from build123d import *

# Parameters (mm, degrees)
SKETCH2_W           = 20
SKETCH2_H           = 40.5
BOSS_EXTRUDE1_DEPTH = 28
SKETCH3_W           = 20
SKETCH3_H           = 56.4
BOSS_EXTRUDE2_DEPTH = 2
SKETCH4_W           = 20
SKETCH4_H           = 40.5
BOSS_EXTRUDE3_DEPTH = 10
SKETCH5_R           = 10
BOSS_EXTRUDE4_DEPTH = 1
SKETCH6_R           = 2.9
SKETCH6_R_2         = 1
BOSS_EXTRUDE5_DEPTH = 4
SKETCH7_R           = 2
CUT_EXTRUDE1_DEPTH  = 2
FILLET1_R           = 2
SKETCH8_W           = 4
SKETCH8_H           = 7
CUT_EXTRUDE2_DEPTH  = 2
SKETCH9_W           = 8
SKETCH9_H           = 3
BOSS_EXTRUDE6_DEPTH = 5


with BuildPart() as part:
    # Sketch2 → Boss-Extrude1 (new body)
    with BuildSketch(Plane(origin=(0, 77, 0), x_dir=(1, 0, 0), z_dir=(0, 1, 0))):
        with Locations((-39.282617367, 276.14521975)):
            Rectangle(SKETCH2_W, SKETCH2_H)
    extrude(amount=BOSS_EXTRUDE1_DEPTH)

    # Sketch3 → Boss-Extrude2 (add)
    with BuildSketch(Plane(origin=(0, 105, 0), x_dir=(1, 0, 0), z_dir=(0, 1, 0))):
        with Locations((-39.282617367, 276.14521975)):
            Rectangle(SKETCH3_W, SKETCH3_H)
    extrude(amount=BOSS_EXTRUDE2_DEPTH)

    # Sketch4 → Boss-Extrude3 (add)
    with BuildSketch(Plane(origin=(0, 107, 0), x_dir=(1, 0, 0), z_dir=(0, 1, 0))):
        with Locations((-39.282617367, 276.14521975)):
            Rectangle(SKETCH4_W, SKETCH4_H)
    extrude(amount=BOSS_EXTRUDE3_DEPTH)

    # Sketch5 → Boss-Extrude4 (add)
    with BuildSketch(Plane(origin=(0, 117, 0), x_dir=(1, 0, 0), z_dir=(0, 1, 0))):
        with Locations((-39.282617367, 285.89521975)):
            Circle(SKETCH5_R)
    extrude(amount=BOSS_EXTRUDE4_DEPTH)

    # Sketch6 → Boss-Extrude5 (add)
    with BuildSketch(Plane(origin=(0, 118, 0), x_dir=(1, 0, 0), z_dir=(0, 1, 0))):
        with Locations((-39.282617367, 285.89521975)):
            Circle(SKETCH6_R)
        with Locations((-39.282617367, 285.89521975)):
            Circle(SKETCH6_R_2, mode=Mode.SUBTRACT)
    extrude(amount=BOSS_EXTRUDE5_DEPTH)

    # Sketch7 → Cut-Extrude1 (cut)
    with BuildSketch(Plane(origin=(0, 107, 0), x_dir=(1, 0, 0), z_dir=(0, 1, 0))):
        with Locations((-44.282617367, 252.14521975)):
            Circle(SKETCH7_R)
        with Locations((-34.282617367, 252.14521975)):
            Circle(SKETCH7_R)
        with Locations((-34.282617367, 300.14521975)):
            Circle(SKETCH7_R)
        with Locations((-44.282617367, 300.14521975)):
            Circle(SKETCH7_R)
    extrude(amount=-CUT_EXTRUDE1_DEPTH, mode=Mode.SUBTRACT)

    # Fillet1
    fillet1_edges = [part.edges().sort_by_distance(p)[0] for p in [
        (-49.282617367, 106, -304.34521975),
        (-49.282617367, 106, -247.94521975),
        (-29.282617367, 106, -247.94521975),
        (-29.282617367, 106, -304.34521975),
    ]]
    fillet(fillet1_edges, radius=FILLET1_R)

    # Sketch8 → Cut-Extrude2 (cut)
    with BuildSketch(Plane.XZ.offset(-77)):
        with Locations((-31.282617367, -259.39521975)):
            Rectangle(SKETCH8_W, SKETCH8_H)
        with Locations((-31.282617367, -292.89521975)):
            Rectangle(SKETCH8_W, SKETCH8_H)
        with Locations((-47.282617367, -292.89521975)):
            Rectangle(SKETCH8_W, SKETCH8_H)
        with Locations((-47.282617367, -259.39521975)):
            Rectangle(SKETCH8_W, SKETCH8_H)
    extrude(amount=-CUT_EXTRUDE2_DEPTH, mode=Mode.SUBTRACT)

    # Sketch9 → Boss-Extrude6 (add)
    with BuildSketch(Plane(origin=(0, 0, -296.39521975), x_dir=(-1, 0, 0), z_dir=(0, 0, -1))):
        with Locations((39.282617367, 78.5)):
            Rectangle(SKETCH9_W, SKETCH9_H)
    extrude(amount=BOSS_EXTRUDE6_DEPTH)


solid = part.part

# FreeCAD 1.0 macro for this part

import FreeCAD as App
import Part
import Sketcher


def edges_at(feature, points):
    """Names of the edges that pass closest to the given points."""
    edges = feature.Shape.Edges
    near = lambda p: min(range(len(edges)), key=lambda i: edges[i].distToShape(Part.Vertex(*p))[0])
    return sorted({f"Edge{near(p) + 1}" for p in points})


def add_polygon(sketch, points):
    """Adds a closed chain of lines whose ends are joined by coincident constraints."""
    first, n = sketch.GeometryCount, len(points)
    for a, b in zip(points, points[1:] + points[:1]):
        sketch.addGeometry(Part.LineSegment(App.Vector(*a, 0), App.Vector(*b, 0)), False)
    for i in range(n):
        sketch.addConstraint(Sketcher.Constraint("Coincident", first + i, 2, first + (i + 1) % n, 1))

doc = App.newDocument("Part")
body = doc.addObject("PartDesign::Body", "Body")

# Sketch on XZ plane
sketch1 = body.newObject("Sketcher::SketchObject", "Sketch")
sketch1.AttachmentSupport = (doc.getObject("XZ_Plane"), [""])
sketch1.MapMode = "FlatFace"
sketch1.AttachmentOffset = App.Placement(App.Vector(0, 0, -77), App.Rotation())
add_polygon(sketch1, [(-49, -296), (-49, -256), (-29, -256), (-29, -296)])  # lines 0-3
sketch1.addConstraint([
    Sketcher.Constraint("Vertical", 0),
    Sketcher.Constraint("Horizontal", 1),
    Sketcher.Constraint("Vertical", 2),
    Sketcher.Constraint("Horizontal", 3),
    Sketcher.Constraint("DistanceX", 1, 1, 1, 2, 20.0),
    Sketcher.Constraint("DistanceY", 0, 1, 0, 2, 40.5),
    Sketcher.Constraint("DistanceY", 0, 2, -1, 1, 255.89522),
    Sketcher.Constraint("DistanceX", 0, 2, -1, 1, 49.282617),
])
pad1 = body.newObject("PartDesign::Pad", "Pad")
pad1.Profile = sketch1
pad1.Length = 28
pad1.Reversed = True

# Sketch on XZ plane
sketch2 = body.newObject("Sketcher::SketchObject", "Sketch001")
sketch2.AttachmentSupport = (doc.getObject("XZ_Plane"), [""])
sketch2.MapMode = "FlatFace"
sketch2.AttachmentOffset = App.Placement(App.Vector(0, 0, -105), App.Rotation())
add_polygon(sketch2, [(-49, -304), (-49, -248), (-29, -248), (-29, -304)])  # lines 0-3
sketch2.addConstraint([
    Sketcher.Constraint("Vertical", 0),
    Sketcher.Constraint("Horizontal", 1),
    Sketcher.Constraint("Vertical", 2),
    Sketcher.Constraint("Horizontal", 3),
    Sketcher.Constraint("DistanceX", 1, 1, 1, 2, 20.0),
    Sketcher.Constraint("DistanceY", 0, 1, 0, 2, 56.4),
    Sketcher.Constraint("DistanceY", 0, 2, -1, 1, 247.94522),
    Sketcher.Constraint("DistanceX", 0, 2, -1, 1, 49.282617),
])
pad2 = body.newObject("PartDesign::Pad", "Pad001")
pad2.Profile = sketch2
pad2.Length = 2
pad2.Reversed = True

# Sketch on XZ plane
sketch3 = body.newObject("Sketcher::SketchObject", "Sketch002")
sketch3.AttachmentSupport = (doc.getObject("XZ_Plane"), [""])
sketch3.MapMode = "FlatFace"
sketch3.AttachmentOffset = App.Placement(App.Vector(0, 0, -107), App.Rotation())
add_polygon(sketch3, [(-49, -296), (-49, -256), (-29, -256), (-29, -296)])  # lines 0-3
sketch3.addConstraint([
    Sketcher.Constraint("Vertical", 0),
    Sketcher.Constraint("Horizontal", 1),
    Sketcher.Constraint("Vertical", 2),
    Sketcher.Constraint("Horizontal", 3),
    Sketcher.Constraint("DistanceX", 1, 1, 1, 2, 20.0),
    Sketcher.Constraint("DistanceY", 0, 1, 0, 2, 40.5),
    Sketcher.Constraint("DistanceY", 0, 2, -1, 1, 255.89522),
    Sketcher.Constraint("DistanceX", 0, 2, -1, 1, 49.282617),
])
pad3 = body.newObject("PartDesign::Pad", "Pad002")
pad3.Profile = sketch3
pad3.Length = 10
pad3.Reversed = True

# Sketch on XZ plane
sketch4 = body.newObject("Sketcher::SketchObject", "Sketch003")
sketch4.AttachmentSupport = (doc.getObject("XZ_Plane"), [""])
sketch4.MapMode = "FlatFace"
sketch4.AttachmentOffset = App.Placement(App.Vector(0, 0, -117), App.Rotation())
sketch4.addGeometry(Part.Circle(App.Vector(-39, -286, 0), App.Vector(0, 0, 1), 10), False)
sketch4.addConstraint([
    Sketcher.Constraint("Diameter", 0, 20.0),
    Sketcher.Constraint("DistanceY", 0, 3, -1, 1, 285.89522),
    Sketcher.Constraint("DistanceX", 0, 3, -1, 1, 39.282617),
])
pad4 = body.newObject("PartDesign::Pad", "Pad003")
pad4.Profile = sketch4
pad4.Length = 1
pad4.Reversed = True

# Sketch on XZ plane
sketch5 = body.newObject("Sketcher::SketchObject", "Sketch004")
sketch5.AttachmentSupport = (doc.getObject("XZ_Plane"), [""])
sketch5.MapMode = "FlatFace"
sketch5.AttachmentOffset = App.Placement(App.Vector(0, 0, -118), App.Rotation())
sketch5.addGeometry([
    Part.Circle(App.Vector(-39.3, -285.9, 0), App.Vector(0, 0, 1), 2.9),
    Part.Circle(App.Vector(-39.3, -285.9, 0), App.Vector(0, 0, 1), 1),
], False)
sketch5.addConstraint([
    Sketcher.Constraint("Coincident", 1, 3, 0, 3),
    Sketcher.Constraint("Diameter", 1, 2.0),
    Sketcher.Constraint("Diameter", 0, 5.8),
    Sketcher.Constraint("DistanceY", 0, 3, -1, 1, 285.89522),
    Sketcher.Constraint("DistanceX", 0, 3, -1, 1, 39.282617),
])
pad5 = body.newObject("PartDesign::Pad", "Pad004")
pad5.Profile = sketch5
pad5.Length = 4
pad5.Reversed = True

# Sketch on XZ plane
sketch6 = body.newObject("Sketcher::SketchObject", "Sketch005")
sketch6.AttachmentSupport = (doc.getObject("XZ_Plane"), [""])
sketch6.MapMode = "FlatFace"
sketch6.AttachmentOffset = App.Placement(App.Vector(0, 0, -107), App.Rotation())
sketch6.addGeometry([
    Part.Circle(App.Vector(-44.3, -252.1, 0), App.Vector(0, 0, 1), 2),
    Part.Circle(App.Vector(-34.3, -252.1, 0), App.Vector(0, 0, 1), 2),
    Part.Circle(App.Vector(-34.3, -300.1, 0), App.Vector(0, 0, 1), 2),
    Part.Circle(App.Vector(-44.3, -300.1, 0), App.Vector(0, 0, 1), 2),
], False)
sketch6.addConstraint([
    Sketcher.Constraint("Equal", 0, 1),
    Sketcher.Constraint("Equal", 1, 2),
    Sketcher.Constraint("Equal", 2, 3),
    Sketcher.Constraint("Horizontal", 0, 3, 1, 3),
    Sketcher.Constraint("Horizontal", 2, 3, 3, 3),
    Sketcher.Constraint("Vertical", 1, 3, 2, 3),
    Sketcher.Constraint("Vertical", 0, 3, 3, 3),
    Sketcher.Constraint("Diameter", 0, 4.0),
    Sketcher.Constraint("DistanceX", 0, 3, 1, 3, 10.0),
    Sketcher.Constraint("DistanceY", 2, 3, 1, 3, 48.0),
    Sketcher.Constraint("DistanceY", 0, 3, -1, 1, 252.14522),
    Sketcher.Constraint("DistanceX", 0, 3, -1, 1, 44.282617),
])
pocket1 = body.newObject("PartDesign::Pocket", "Pocket")
pocket1.Profile = sketch6
pocket1.Length = 2
pocket1.Reversed = True
doc.recompute()

fillet = body.newObject("PartDesign::Fillet", "Fillet")
fillet.Base = (pocket1, edges_at(pocket1, [
    (-49.283, 106, -304.345),
    (-49.283, 106, -247.945),
    (-29.283, 106, -247.945),
    (-29.283, 106, -304.345),
]))
fillet.Radius = 2

# Sketch on XZ plane
sketch7 = body.newObject("Sketcher::SketchObject", "Sketch006")
sketch7.AttachmentSupport = (doc.getObject("XZ_Plane"), [""])
sketch7.MapMode = "FlatFace"
sketch7.AttachmentOffset = App.Placement(App.Vector(0, 0, -77), App.Rotation())
add_polygon(sketch7, [(-33.3, -255.9), (-33.3, -262.9), (-29.3, -262.9), (-29.3, -255.9)])  # lines 0-3
add_polygon(sketch7, [(-33.3, -289.4), (-33.3, -296.4), (-29.3, -296.4), (-29.3, -289.4)])  # lines 4-7
add_polygon(sketch7, [(-49.3, -289.4), (-49.3, -296.4), (-45.3, -296.4), (-45.3, -289.4)])  # lines 8-11
add_polygon(sketch7, [(-49.3, -255.9), (-49.3, -262.9), (-45.3, -262.9), (-45.3, -255.9)])  # lines 12-15
sketch7.addConstraint([
    Sketcher.Constraint("Vertical", 0),
    Sketcher.Constraint("Horizontal", 1),
    Sketcher.Constraint("Vertical", 2),
    Sketcher.Constraint("Horizontal", 3),
    Sketcher.Constraint("Vertical", 4),
    Sketcher.Constraint("Horizontal", 5),
    Sketcher.Constraint("Vertical", 6),
    Sketcher.Constraint("Horizontal", 7),
    Sketcher.Constraint("Vertical", 8),
    Sketcher.Constraint("Horizontal", 9),
    Sketcher.Constraint("Vertical", 10),
    Sketcher.Constraint("Horizontal", 11),
    Sketcher.Constraint("Vertical", 12),
    Sketcher.Constraint("Horizontal", 13),
    Sketcher.Constraint("Vertical", 14),
    Sketcher.Constraint("Horizontal", 15),
    Sketcher.Constraint("Horizontal", 5, 2, 8, 2),
    Sketcher.Constraint("Horizontal", 7, 2, 10, 2),
    Sketcher.Constraint("Horizontal", 1, 2, 12, 2),
    Sketcher.Constraint("Horizontal", 3, 2, 14, 2),
    Sketcher.Constraint("Vertical", 3, 2, 4, 2),
    Sketcher.Constraint("Vertical", 2, 2, 5, 2),
    Sketcher.Constraint("Vertical", 11, 2, 12, 2),
    Sketcher.Constraint("Vertical", 10, 2, 13, 2),
    Sketcher.Constraint("Equal", 7, 9),
    Sketcher.Constraint("Equal", 2, 4),
    Sketcher.Constraint("DistanceX", 1, 1, 1, 2, 4.0),
    Sketcher.Constraint("DistanceY", 0, 2, 0, 1, 7.0),
    Sketcher.Constraint("DistanceX", 8, 2, 4, 2, 16.0),
    Sketcher.Constraint("DistanceY", 4, 2, 0, 2, 33.5),
    Sketcher.Constraint("DistanceY", 0, 2, -1, 1, 262.89522),
    Sketcher.Constraint("DistanceX", 0, 2, -1, 1, 33.282617),
])
pocket2 = body.newObject("PartDesign::Pocket", "Pocket001")
pocket2.Profile = sketch7
pocket2.Length = 2

# Sketch on XY plane
sketch8 = body.newObject("Sketcher::SketchObject", "Sketch007")
sketch8.AttachmentSupport = (doc.getObject("XY_Plane"), [""])
sketch8.MapMode = "FlatFace"
sketch8.AttachmentOffset = App.Placement(App.Vector(0, 0, -296.39522), App.Rotation())
add_polygon(sketch8, [(-35.3, 80), (-35.3, 77), (-43.3, 77), (-43.3, 80)])  # lines 0-3
sketch8.addConstraint([
    Sketcher.Constraint("Vertical", 0),
    Sketcher.Constraint("Horizontal", 1),
    Sketcher.Constraint("Vertical", 2),
    Sketcher.Constraint("Horizontal", 3),
    Sketcher.Constraint("DistanceX", 1, 2, 1, 1, 8.0),
    Sketcher.Constraint("DistanceY", 0, 2, 0, 1, 3.0),
    Sketcher.Constraint("DistanceY", -1, 1, 0, 2, 77.0),
    Sketcher.Constraint("DistanceX", 0, 2, -1, 1, 35.282617),
])
pad6 = body.newObject("PartDesign::Pad", "Pad005")
pad6.Profile = sketch8
pad6.Length = 5
pad6.Reversed = True

doc.recompute()
